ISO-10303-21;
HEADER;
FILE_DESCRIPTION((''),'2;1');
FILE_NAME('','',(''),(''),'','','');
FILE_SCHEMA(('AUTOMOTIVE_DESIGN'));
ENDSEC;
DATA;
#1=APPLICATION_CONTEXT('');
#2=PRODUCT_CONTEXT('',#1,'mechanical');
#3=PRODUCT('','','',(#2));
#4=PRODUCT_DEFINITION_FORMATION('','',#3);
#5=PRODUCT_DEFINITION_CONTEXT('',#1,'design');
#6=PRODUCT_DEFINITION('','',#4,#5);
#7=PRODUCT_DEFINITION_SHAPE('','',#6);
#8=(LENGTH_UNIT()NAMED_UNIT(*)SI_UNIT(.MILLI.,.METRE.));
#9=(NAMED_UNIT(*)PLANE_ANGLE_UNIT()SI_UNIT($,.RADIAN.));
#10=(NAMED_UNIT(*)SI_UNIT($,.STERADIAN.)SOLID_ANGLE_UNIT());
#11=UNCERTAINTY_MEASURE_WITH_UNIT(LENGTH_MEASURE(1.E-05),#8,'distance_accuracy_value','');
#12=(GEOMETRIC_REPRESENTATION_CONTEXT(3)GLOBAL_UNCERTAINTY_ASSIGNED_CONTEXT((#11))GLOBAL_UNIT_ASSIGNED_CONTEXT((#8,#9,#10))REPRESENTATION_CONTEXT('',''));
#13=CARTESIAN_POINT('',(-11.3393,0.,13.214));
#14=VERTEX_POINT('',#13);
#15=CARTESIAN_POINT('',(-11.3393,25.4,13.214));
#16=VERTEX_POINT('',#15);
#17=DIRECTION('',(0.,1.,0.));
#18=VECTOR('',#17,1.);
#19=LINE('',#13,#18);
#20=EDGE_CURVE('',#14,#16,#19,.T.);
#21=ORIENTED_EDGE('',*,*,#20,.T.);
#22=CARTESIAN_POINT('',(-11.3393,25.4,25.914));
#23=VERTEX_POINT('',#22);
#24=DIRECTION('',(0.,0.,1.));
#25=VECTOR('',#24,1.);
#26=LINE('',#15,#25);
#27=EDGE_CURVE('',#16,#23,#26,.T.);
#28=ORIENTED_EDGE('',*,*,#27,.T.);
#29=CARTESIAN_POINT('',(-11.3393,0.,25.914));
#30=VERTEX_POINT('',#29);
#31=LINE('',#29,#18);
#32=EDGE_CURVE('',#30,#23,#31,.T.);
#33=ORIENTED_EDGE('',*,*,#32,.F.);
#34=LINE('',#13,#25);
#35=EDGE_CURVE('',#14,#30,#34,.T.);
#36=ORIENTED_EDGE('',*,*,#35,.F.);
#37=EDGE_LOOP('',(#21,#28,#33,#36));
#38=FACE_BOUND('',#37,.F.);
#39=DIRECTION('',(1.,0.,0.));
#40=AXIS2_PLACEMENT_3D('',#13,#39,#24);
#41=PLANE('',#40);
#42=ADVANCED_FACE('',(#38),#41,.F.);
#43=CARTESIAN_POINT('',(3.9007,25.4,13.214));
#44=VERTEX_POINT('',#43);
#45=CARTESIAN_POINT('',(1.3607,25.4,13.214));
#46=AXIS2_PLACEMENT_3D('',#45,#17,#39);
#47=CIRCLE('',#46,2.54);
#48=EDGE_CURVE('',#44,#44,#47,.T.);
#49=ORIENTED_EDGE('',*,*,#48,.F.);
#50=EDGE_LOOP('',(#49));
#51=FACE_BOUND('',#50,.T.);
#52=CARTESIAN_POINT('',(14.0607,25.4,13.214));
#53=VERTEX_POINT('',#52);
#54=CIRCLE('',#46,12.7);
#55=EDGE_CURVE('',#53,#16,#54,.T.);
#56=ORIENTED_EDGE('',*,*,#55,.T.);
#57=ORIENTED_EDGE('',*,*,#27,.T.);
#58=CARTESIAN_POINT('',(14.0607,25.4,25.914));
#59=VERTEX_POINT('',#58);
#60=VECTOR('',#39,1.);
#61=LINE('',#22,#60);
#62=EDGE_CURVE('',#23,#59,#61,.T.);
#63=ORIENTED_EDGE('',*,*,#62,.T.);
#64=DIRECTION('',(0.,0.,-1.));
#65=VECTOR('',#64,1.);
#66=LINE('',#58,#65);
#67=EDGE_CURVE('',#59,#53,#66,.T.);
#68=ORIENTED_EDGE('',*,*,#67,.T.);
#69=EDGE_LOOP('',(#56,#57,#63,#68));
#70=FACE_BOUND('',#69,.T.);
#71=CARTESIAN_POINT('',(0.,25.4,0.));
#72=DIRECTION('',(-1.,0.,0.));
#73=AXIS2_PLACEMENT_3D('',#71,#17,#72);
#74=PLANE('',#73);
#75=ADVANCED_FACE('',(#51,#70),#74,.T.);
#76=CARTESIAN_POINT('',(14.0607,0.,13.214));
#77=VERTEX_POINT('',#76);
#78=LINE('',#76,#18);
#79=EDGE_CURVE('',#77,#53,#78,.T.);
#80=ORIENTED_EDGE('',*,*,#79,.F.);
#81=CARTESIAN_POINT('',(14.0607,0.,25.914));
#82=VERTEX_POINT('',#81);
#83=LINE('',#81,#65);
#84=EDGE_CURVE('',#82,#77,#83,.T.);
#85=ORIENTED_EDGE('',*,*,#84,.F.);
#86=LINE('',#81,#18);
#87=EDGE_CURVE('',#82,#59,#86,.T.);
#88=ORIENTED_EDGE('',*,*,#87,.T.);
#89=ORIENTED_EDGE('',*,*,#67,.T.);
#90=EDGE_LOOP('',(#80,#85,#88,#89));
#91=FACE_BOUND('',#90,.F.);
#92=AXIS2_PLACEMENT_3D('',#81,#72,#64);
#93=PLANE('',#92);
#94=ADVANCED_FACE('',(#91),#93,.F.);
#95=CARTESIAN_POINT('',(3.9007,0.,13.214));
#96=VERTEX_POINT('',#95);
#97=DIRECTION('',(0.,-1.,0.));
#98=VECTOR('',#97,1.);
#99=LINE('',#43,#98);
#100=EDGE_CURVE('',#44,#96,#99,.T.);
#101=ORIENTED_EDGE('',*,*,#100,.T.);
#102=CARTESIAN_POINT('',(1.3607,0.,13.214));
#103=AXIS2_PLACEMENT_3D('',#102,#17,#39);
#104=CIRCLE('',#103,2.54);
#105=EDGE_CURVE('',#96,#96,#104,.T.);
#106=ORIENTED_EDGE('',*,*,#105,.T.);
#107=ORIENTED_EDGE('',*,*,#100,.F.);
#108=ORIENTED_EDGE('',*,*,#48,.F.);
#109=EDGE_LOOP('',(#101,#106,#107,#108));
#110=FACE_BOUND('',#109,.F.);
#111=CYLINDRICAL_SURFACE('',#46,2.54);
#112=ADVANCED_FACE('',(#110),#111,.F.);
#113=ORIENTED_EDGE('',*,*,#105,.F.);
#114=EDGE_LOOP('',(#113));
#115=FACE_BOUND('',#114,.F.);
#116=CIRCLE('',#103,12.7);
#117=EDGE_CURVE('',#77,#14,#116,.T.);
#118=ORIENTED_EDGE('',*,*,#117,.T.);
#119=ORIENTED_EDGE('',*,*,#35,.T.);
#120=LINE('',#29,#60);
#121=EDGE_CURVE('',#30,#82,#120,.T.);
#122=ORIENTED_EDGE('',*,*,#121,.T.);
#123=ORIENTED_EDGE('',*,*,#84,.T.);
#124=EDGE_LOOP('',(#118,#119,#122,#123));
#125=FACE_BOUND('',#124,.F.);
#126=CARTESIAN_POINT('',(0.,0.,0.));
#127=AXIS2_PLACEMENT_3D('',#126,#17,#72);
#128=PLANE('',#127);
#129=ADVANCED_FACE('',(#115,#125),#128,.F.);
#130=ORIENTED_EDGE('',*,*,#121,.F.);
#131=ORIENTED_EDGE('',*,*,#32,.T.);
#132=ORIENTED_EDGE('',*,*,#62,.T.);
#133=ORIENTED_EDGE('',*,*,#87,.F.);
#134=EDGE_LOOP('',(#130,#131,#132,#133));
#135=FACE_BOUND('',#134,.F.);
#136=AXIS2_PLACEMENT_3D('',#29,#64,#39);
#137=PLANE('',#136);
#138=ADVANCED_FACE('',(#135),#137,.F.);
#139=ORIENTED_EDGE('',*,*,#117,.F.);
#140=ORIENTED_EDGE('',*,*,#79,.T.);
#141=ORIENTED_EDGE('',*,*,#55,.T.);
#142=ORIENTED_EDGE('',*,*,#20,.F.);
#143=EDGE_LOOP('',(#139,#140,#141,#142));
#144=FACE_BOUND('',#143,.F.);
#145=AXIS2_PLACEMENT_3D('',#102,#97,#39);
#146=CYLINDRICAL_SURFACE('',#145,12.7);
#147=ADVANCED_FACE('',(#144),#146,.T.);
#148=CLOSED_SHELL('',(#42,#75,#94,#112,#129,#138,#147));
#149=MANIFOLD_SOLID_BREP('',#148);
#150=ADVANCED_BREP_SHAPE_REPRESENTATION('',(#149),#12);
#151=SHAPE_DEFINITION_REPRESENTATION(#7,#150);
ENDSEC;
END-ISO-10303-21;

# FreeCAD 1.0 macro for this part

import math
import FreeCAD as App
import Part
import Sketcher
from FreeCAD import Vector
Q = App.Units.Quantity

doc = App.newDocument("Part")
body = doc.addObject("PartDesign::Body", "Body")

sketch1 = body.newObject("Sketcher::SketchObject", "Sketch")
sketch1.AttachmentSupport = (doc.getObject("XZ_Plane"), [""])
sketch1.MapMode = "FlatFace"
sketch1.addGeometry([
    Part.LineSegment(Vector(-11.3393, 13.214, 0), Vector(-11.3393, 25.914, 0)),
    Part.LineSegment(Vector(-11.3393, 25.914, 0), Vector(14.0607, 25.914, 0)),
    Part.LineSegment(Vector(14.0607, 25.914, 0), Vector(14.0607, 13.214, 0)),
    Part.ArcOfCircle(Part.Circle(Vector(1.3607, 13.214, 0), Vector(0, 0, 1), 12.7), math.radians(180), math.radians(360)),
], False)
sketch1.addConstraint([
    Sketcher.Constraint("Coincident", 0, 2, 1, 1),
    Sketcher.Constraint("Coincident", 1, 2, 2, 1),
    Sketcher.Constraint("Tangent", 2, 2, 3, 2),
    Sketcher.Constraint("Tangent", 3, 1, 0, 1),
    Sketcher.Constraint("Vertical", 0),
    Sketcher.Constraint("Horizontal", 1),
    Sketcher.Constraint("Vertical", 2),
    Sketcher.Constraint("Radius", 3, Q("0.5 in")),
    Sketcher.Constraint("DistanceY", 0, 1, 0, 2, Q("0.5 in")),
    Sketcher.Constraint("DistanceX", -1, 1, 3, 3, Q("1.3607 mm")),
    Sketcher.Constraint("DistanceY", -1, 1, 3, 3, Q("13.214 mm")),
])
pad1 = body.newObject("PartDesign::Pad", "Pad")
pad1.Profile = sketch1
pad1.Length = Q("1 in")
pad1.Reversed = True

sketch2 = body.newObject("Sketcher::SketchObject", "Sketch001")
sketch2.AttachmentSupport = (doc.getObject("XZ_Plane"), [""])
sketch2.MapMode = "FlatFace"
sketch2.AttachmentOffset = App.Placement(Vector(0, 0, -1 * 25.4), App.Rotation())
sketch2.addGeometry(Part.Circle(Vector(1.3607, 13.214, 0), Vector(0, 0, 1), 2.54), False)
sketch2.addConstraint([
    Sketcher.Constraint("Diameter", 0, Q("0.2 in")),
    Sketcher.Constraint("DistanceX", -1, 1, 0, 3, Q("1.3607 mm")),
    Sketcher.Constraint("DistanceY", -1, 1, 0, 3, Q("13.214 mm")),
])
pocket1 = body.newObject("PartDesign::Pocket", "Pocket")
pocket1.Profile = sketch2
pocket1.Length = Q("1 in")
pocket1.Reversed = True

doc.recompute()
